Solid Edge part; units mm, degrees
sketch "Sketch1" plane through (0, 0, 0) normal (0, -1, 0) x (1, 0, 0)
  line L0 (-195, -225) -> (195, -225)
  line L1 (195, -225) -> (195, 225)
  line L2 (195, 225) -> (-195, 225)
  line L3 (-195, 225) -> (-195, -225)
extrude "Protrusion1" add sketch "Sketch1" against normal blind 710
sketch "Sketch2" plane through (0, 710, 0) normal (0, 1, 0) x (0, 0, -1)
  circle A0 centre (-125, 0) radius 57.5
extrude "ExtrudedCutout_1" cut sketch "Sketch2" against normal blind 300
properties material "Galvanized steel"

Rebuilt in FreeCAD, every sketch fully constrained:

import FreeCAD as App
import Part
import Sketcher
Q = App.Units.Quantity

doc = App.newDocument("Part")
body = doc.addObject("PartDesign::Body", "Body")

# Sketch on XZ plane
sketch1 = body.newObject("Sketcher::SketchObject", "Sketch")
sketch1.AttachmentSupport = (doc.getObject("XZ_Plane"), [""])
sketch1.MapMode = "FlatFace"
sketch1.addGeometry([
    Part.LineSegment(App.Vector(-195, 225, 0), App.Vector(-195, -225, 0)),
    Part.LineSegment(App.Vector(-195, -225, 0), App.Vector(195, -225, 0)),
    Part.LineSegment(App.Vector(195, -225, 0), App.Vector(195, 225, 0)),
    Part.LineSegment(App.Vector(195, 225, 0), App.Vector(-195, 225, 0)),
], False)
sketch1.addConstraint([
    Sketcher.Constraint("Coincident", 0, 2, 1, 1),
    Sketcher.Constraint("Coincident", 1, 2, 2, 1),
    Sketcher.Constraint("Coincident", 2, 2, 3, 1),
    Sketcher.Constraint("Coincident", 3, 2, 0, 1),
    Sketcher.Constraint("Vertical", 0),
    Sketcher.Constraint("Horizontal", 1),
    Sketcher.Constraint("Vertical", 2),
    Sketcher.Constraint("Horizontal", 3),
    Sketcher.Constraint("Symmetric", 0, 2, 2, 2, -1, 1),
    Sketcher.Constraint("DistanceX", 1, 1, 1, 2, Q("390 mm")),
    Sketcher.Constraint("DistanceY", 0, 2, 0, 1, Q("450 mm")),
])
pad1 = body.newObject("PartDesign::Pad", "Pad")
pad1.Profile = sketch1
pad1.Length = 710
pad1.Reversed = True

# Sketch on XZ plane
sketch2 = body.newObject("Sketcher::SketchObject", "Sketch001")
sketch2.AttachmentSupport = (doc.getObject("XZ_Plane"), [""])
sketch2.MapMode = "FlatFace"
sketch2.AttachmentOffset = App.Placement(App.Vector(0, 0, -710), App.Rotation())
sketch2.addGeometry(Part.Circle(App.Vector(0, 125, 0), App.Vector(0, 0, 1), 58), False)
sketch2.addConstraint([
    Sketcher.Constraint("PointOnObject", 0, 3, -2),
    Sketcher.Constraint("Diameter", 0, Q("115 mm")),
    Sketcher.Constraint("DistanceY", -1, 1, 0, 3, Q("125 mm")),
])
pocket1 = body.newObject("PartDesign::Pocket", "Pocket")
pocket1.Profile = sketch2
pocket1.Length = 300
pocket1.Reversed = True

doc.recompute()
